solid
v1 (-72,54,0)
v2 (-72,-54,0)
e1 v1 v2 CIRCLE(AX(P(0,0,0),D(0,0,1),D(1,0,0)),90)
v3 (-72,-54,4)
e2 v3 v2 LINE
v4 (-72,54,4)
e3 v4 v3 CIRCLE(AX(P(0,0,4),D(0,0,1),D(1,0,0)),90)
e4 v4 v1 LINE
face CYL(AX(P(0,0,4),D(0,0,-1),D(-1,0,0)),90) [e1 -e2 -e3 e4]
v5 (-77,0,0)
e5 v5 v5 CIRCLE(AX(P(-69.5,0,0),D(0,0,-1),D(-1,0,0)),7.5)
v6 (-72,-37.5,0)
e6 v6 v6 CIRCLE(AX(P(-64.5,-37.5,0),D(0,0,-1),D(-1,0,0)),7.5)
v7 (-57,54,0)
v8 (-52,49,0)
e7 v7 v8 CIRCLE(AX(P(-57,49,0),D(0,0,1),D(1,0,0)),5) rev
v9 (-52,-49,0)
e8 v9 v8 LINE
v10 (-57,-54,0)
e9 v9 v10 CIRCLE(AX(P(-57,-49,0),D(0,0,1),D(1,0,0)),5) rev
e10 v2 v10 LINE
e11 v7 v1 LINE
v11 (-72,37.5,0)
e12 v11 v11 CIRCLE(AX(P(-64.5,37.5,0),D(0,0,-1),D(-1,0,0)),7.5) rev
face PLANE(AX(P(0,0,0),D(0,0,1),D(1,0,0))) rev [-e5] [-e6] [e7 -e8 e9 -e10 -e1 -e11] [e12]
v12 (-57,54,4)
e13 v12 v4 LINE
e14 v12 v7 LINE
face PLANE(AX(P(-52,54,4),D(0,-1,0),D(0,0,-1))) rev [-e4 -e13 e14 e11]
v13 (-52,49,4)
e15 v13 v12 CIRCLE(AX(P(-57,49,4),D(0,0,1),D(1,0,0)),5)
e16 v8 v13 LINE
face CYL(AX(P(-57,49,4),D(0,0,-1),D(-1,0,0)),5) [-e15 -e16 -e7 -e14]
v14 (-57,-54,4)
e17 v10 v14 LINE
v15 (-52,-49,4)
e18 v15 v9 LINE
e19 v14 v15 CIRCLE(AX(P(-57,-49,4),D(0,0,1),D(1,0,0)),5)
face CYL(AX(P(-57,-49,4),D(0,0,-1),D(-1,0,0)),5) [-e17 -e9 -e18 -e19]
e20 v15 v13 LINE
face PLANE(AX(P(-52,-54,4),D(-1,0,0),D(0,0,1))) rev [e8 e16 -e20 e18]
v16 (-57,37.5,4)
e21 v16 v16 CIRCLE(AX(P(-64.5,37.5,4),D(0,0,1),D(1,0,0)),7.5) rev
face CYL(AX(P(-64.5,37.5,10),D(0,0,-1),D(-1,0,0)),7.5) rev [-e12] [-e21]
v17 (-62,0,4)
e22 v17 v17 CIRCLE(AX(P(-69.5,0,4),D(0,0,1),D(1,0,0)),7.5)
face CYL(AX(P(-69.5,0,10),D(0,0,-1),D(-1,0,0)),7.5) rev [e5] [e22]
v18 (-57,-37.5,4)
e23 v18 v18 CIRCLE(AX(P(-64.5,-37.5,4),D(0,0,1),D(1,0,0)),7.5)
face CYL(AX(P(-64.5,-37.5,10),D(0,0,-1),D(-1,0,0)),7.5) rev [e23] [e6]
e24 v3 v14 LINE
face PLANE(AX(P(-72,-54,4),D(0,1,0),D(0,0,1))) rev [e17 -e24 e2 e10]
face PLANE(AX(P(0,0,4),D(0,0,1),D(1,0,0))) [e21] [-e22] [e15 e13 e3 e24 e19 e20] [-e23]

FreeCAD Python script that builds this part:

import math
import FreeCAD as App
import Part
import Sketcher

V = App.Vector
Q = App.Units.Quantity


def edges_at(feature, points):
    """Names of the edges that pass closest to the given points."""
    edges = feature.Shape.Edges
    near = lambda p: min(range(len(edges)), key=lambda i: edges[i].distToShape(Part.Vertex(*p))[0])
    return sorted({f"Edge{near(p) + 1}" for p in points})

doc = App.newDocument("Part")
body = doc.addObject("PartDesign::Body", "Body")

# Sketch on XY plane
sketch1 = body.newObject("Sketcher::SketchObject", "Sketch")
sketch1.AttachmentSupport = (doc.getObject("XY_Plane"), [""])
sketch1.MapMode = "FlatFace"
sketch1.addGeometry(Part.LineSegment(V(-72, -54, 0), V(-52, -54, 0)), False)
sketch1.addGeometry(Part.LineSegment(V(-52, -54, 0), V(-52, 54, 0)), False)
sketch1.addGeometry(Part.LineSegment(V(-52, 54, 0), V(-72, 54, 0)), False)
sketch1.addGeometry(Part.ArcOfCircle(Part.Circle(V(0, 0, 0), V(0, 0, 1), 90), math.radians(143.130102), math.radians(216.869898)), False)
sketch1.addConstraint(Sketcher.Constraint("Coincident", 0, 2, 1, 1))
sketch1.addConstraint(Sketcher.Constraint("Coincident", 1, 2, 2, 1))
sketch1.addConstraint(Sketcher.Constraint("Coincident", 2, 2, 3, 1))
sketch1.addConstraint(Sketcher.Constraint("Coincident", 3, 2, 0, 1))
sketch1.addConstraint(Sketcher.Constraint("Horizontal", 0))
sketch1.addConstraint(Sketcher.Constraint("Vertical", 1))
sketch1.addConstraint(Sketcher.Constraint("Horizontal", 2))
sketch1.addConstraint(Sketcher.Constraint("Coincident", 3, 3, -1, 1))
sketch1.addConstraint(Sketcher.Constraint("Vertical", 2, 2, 3, 2))
sketch1.addConstraint(Sketcher.Constraint("Radius", 3, Q("90 mm")))
sketch1.addConstraint(Sketcher.Constraint("DistanceX", 0, 1, 0, 2, Q("20 mm")))
sketch1.addConstraint(Sketcher.Constraint("DistanceY", 1, 1, 1, 2, Q("108 mm")))
pad1 = body.newObject("PartDesign::Pad", "Pad")
pad1.Profile = sketch1
pad1.Length = 4

# Sketch on XY plane
sketch2 = body.newObject("Sketcher::SketchObject", "Sketch001")
sketch2.AttachmentSupport = (doc.getObject("XY_Plane"), [""])
sketch2.MapMode = "FlatFace"
sketch2.addGeometry(Part.Circle(V(-69.5, 0, 0), V(0, 0, 1), 7.5), False)
sketch2.addGeometry(Part.Circle(V(-64.5, -37.5, 0), V(0, 0, 1), 7.5), False)
sketch2.addGeometry(Part.Circle(V(-64.5, 37.5, 0), V(0, 0, 1), 7.5), False)
sketch2.addConstraint(Sketcher.Constraint("Equal", 0, 1))
sketch2.addConstraint(Sketcher.Constraint("Equal", 1, 2))
sketch2.addConstraint(Sketcher.Constraint("Symmetric", 1, 3, 2, 3, -1))
sketch2.addConstraint(Sketcher.Constraint("PointOnObject", 0, 3, -1))
sketch2.addConstraint(Sketcher.Constraint("Diameter", 0, Q("15 mm")))
sketch2.addConstraint(Sketcher.Constraint("DistanceX", 0, 3, 1, 3, Q("5 mm")))
sketch2.addConstraint(Sketcher.Constraint("DistanceY", 1, 3, 2, 3, Q("75 mm")))
sketch2.addConstraint(Sketcher.Constraint("DistanceX", 0, 3, -1, 1, Q("69.5 mm")))
pocket1 = body.newObject("PartDesign::Pocket", "Pocket")
pocket1.Profile = sketch2
pocket1.Length = 10
pocket1.Reversed = True
doc.recompute()

fillet = body.newObject("PartDesign::Fillet", "Fillet")
fillet.Base = (pocket1, edges_at(pocket1, [(-52, 54, 2), (-52, -54, 2)]))
fillet.Radius = 5

doc.recompute()
